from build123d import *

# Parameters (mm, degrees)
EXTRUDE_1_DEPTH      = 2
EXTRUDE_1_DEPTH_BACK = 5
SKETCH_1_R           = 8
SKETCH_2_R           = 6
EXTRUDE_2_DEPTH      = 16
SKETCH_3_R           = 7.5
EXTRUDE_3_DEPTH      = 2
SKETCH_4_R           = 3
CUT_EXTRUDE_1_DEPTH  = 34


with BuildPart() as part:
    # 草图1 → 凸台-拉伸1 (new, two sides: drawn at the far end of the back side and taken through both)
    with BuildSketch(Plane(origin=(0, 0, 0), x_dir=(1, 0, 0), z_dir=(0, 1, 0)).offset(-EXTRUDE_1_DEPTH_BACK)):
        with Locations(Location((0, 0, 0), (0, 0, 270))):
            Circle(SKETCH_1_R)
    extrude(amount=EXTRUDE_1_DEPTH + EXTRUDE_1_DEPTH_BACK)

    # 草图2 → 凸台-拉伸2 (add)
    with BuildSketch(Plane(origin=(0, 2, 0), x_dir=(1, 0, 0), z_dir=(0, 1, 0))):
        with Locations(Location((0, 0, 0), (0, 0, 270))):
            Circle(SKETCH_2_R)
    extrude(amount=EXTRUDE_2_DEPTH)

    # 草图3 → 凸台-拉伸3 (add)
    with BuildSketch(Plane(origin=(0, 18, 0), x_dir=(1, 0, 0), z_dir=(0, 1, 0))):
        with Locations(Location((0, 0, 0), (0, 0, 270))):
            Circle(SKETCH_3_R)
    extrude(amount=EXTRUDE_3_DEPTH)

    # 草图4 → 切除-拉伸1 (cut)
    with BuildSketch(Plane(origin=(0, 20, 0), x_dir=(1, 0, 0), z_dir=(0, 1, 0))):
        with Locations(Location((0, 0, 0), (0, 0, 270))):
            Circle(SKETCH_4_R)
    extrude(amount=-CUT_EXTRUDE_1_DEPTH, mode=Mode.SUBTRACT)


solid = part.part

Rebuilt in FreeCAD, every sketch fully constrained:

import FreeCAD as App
import Part
import Sketcher

V = App.Vector

doc = App.newDocument("Part")
body = doc.addObject("PartDesign::Body", "Body")

# Sketch on XZ plane
sketch1 = body.newObject("Sketcher::SketchObject", "Sketch")
sketch1.AttachmentSupport = (doc.getObject("XZ_Plane"), [""])
sketch1.MapMode = "FlatFace"
sketch1.addGeometry(Part.Circle(V(0, 0, 0), V(0, 0, 1), 8), False)
sketch1.addConstraint([
    Sketcher.Constraint("Coincident", 0, 3, -1, 1),
    Sketcher.Constraint("Diameter", 0, 16.0),
])
pad1 = body.newObject("PartDesign::Pad", "Pad")
pad1.Profile = sketch1
pad1.Type = "TwoLengths"
pad1.Length = 2
pad1.Length2 = 5
pad1.Reversed = True

# Sketch on XZ plane
sketch2 = body.newObject("Sketcher::SketchObject", "Sketch001")
sketch2.AttachmentSupport = (doc.getObject("XZ_Plane"), [""])
sketch2.MapMode = "FlatFace"
sketch2.AttachmentOffset = App.Placement(V(0, 0, -2), App.Rotation())
sketch2.addGeometry(Part.Circle(V(0, 0, 0), V(0, 0, 1), 6), False)
sketch2.addConstraint([
    Sketcher.Constraint("Coincident", 0, 3, -1, 1),
    Sketcher.Constraint("Diameter", 0, 12.0),
])
pad2 = body.newObject("PartDesign::Pad", "Pad001")
pad2.Profile = sketch2
pad2.Length = 16
pad2.Reversed = True

# Sketch on XZ plane
sketch3 = body.newObject("Sketcher::SketchObject", "Sketch002")
sketch3.AttachmentSupport = (doc.getObject("XZ_Plane"), [""])
sketch3.MapMode = "FlatFace"
sketch3.AttachmentOffset = App.Placement(V(0, 0, -18), App.Rotation())
sketch3.addGeometry(Part.Circle(V(0, 0, 0), V(0, 0, 1), 8), False)
sketch3.addConstraint([
    Sketcher.Constraint("Coincident", 0, 3, -1, 1),
    Sketcher.Constraint("Diameter", 0, 15.0),
])
pad3 = body.newObject("PartDesign::Pad", "Pad002")
pad3.Profile = sketch3
pad3.Length = 2
pad3.Reversed = True

# Sketch on XZ plane
sketch4 = body.newObject("Sketcher::SketchObject", "Sketch003")
sketch4.AttachmentSupport = (doc.getObject("XZ_Plane"), [""])
sketch4.MapMode = "FlatFace"
sketch4.AttachmentOffset = App.Placement(V(0, 0, -20), App.Rotation())
sketch4.addGeometry(Part.Circle(V(0, 0, 0), V(0, 0, 1), 3), False)
sketch4.addConstraint([
    Sketcher.Constraint("Coincident", 0, 3, -1, 1),
    Sketcher.Constraint("Diameter", 0, 6.0),
])
pocket1 = body.newObject("PartDesign::Pocket", "Pocket")
pocket1.Profile = sketch4
pocket1.Length = 34
pocket1.Reversed = True

doc.recompute()
